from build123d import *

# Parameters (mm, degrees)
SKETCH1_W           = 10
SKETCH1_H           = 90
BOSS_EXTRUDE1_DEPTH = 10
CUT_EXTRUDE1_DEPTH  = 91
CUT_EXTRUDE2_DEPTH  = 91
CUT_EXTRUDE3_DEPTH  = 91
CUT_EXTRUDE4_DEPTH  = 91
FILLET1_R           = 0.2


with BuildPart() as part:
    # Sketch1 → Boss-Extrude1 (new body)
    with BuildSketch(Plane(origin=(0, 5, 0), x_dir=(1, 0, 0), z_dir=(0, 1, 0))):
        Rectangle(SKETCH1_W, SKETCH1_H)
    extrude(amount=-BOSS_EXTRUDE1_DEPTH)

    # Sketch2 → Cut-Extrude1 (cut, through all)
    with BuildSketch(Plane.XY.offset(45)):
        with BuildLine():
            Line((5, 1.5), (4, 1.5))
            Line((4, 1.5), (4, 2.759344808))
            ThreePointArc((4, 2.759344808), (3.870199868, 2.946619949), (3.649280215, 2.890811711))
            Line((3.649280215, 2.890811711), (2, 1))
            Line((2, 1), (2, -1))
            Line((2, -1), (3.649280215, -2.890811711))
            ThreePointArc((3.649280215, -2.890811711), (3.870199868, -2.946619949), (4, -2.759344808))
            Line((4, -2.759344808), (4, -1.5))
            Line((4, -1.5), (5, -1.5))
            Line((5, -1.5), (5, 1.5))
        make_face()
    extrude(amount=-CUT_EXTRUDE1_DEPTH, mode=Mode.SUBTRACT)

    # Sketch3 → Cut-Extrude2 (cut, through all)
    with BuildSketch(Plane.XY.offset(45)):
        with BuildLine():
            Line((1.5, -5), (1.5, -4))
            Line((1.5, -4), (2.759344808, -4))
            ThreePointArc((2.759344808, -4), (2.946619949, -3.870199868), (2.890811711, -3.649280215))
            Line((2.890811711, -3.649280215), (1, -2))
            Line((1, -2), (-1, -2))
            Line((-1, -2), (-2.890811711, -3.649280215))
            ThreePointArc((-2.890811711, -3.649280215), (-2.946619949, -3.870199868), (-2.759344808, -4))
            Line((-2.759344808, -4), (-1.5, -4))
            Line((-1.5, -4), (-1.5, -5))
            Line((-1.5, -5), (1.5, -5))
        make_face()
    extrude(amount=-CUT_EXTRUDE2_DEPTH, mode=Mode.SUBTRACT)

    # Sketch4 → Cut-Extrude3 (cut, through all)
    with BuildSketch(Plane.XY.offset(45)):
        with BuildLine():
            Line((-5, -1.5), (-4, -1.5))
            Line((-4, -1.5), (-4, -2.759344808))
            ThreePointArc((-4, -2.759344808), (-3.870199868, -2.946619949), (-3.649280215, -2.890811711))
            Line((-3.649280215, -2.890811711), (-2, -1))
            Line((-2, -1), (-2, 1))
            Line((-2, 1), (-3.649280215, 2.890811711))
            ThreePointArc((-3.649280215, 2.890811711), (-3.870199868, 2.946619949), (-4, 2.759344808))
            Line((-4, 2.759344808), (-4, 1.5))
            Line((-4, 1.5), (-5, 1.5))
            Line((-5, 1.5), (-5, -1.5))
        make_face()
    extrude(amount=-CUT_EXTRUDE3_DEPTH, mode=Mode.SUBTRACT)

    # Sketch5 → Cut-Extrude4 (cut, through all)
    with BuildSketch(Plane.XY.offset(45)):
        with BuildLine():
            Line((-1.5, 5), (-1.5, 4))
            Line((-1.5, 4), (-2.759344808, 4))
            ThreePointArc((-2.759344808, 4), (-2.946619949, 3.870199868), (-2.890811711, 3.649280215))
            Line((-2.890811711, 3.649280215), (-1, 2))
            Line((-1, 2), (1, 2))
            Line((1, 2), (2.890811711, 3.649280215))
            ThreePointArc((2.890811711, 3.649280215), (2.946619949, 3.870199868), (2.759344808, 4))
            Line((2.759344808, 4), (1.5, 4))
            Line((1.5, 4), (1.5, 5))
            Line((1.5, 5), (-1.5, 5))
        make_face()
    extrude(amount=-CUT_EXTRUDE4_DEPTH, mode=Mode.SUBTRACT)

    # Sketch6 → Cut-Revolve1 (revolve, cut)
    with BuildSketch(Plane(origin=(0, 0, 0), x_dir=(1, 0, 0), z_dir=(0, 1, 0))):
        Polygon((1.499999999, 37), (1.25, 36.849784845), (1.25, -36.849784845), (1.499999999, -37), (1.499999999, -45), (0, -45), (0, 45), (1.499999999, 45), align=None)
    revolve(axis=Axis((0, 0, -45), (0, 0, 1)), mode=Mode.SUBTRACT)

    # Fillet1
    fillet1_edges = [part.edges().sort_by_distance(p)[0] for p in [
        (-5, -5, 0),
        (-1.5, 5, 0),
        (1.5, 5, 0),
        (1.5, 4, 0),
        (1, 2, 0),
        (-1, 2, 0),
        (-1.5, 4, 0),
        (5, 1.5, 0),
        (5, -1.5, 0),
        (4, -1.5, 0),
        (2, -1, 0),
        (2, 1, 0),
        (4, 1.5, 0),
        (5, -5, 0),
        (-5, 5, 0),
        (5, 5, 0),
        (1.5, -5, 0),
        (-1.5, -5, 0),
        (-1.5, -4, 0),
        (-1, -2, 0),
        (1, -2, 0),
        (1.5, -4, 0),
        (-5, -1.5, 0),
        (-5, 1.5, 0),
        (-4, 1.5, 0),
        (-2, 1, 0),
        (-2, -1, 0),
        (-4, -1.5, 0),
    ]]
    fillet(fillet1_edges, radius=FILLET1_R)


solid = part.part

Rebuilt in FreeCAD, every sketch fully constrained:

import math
import FreeCAD as App
import Part
import Sketcher
from FreeCAD import Vector
Q = App.Units.Quantity


def edges_at(feature, points):
    """Names of the edges that pass closest to the given points."""
    edges = feature.Shape.Edges
    near = lambda p: min(range(len(edges)), key=lambda i: edges[i].distToShape(Part.Vertex(*p))[0])
    return sorted({f"Edge{near(p) + 1}" for p in points})

doc = App.newDocument("Part")
params = doc.addObject("Spreadsheet::Sheet", "Params")
for row, (alias, value) in enumerate([
    ("sketch1_width", "10 mm"),
    ("sketch1_height", "90 mm"),
    ("pad1_length", "10 mm"),
    ("sketch2_radius", "0.2 mm"),
    ("sketch2_width", "1 mm"),
    ("sketch2_height", "2 mm"),
    ("sketch2_height2", "3 mm"),
    ("sketch3_radius", "0.2 mm"),
    ("sketch3_width", "2 mm"),
    ("sketch3_width2", "3 mm"),
    ("sketch3_height", "1 mm"),
    ("sketch4_radius", "0.2 mm"),
    ("sketch4_width", "1 mm"),
    ("sketch4_height", "2 mm"),
    ("sketch4_height2", "3 mm"),
    ("sketch5_radius", "0.2 mm"),
    ("sketch5_width", "2 mm"),
    ("sketch5_width2", "3 mm"),
    ("sketch5_height", "1 mm"),
    ("sketch6_height", "8 mm"),
    ("sketch6_height2", "90 mm"),
    ("sketch6_width", "1.5 mm"),
    ("groove_angle", "360 deg"),
    ("fillet_radius", "0.2 mm"),
], start=1):
    params.set(f"A{row}", alias)
    params.set(f"B{row}", "=" + value)
    params.setAlias(f"B{row}", alias)

body = doc.addObject("PartDesign::Body", "Body")

# Sketch on XZ plane
sketch1 = body.newObject("Sketcher::SketchObject", "Sketch")
sketch1.AttachmentSupport = (doc.getObject("XZ_Plane"), [""])
sketch1.MapMode = "FlatFace"
sketch1.AttachmentOffset = App.Placement(Vector(0, 0, -5), App.Rotation())
sketch1.addGeometry([
    Part.LineSegment(Vector(-5, -45, 0), Vector(-5, 45, 0)),
    Part.LineSegment(Vector(-5, 45, 0), Vector(5, 45, 0)),
    Part.LineSegment(Vector(5, 45, 0), Vector(5, -45, 0)),
    Part.LineSegment(Vector(5, -45, 0), Vector(-5, -45, 0)),
], False)
sketch1.addConstraint([
    Sketcher.Constraint("Coincident", 0, 2, 1, 1),
    Sketcher.Constraint("Coincident", 1, 2, 2, 1),
    Sketcher.Constraint("Coincident", 2, 2, 3, 1),
    Sketcher.Constraint("Coincident", 3, 2, 0, 1),
    Sketcher.Constraint("Vertical", 0),
    Sketcher.Constraint("Horizontal", 1),
    Sketcher.Constraint("Vertical", 2),
    Sketcher.Constraint("Horizontal", 3),
    Sketcher.Constraint("Symmetric", 0, 2, 2, 2, -1, 1),
    Sketcher.Constraint("DistanceX", 1, 1, 1, 2, Q("10 mm")),
    Sketcher.Constraint("DistanceY", 0, 1, 0, 2, Q("90 mm")),
])
sketch1.setExpression("Constraints[9]", "Params.sketch1_width")
sketch1.setExpression("Constraints[10]", "Params.sketch1_height")
pad1 = body.newObject("PartDesign::Pad", "Pad")
pad1.Profile = sketch1
pad1.setExpression("Length", "Params.pad1_length")

# Sketch on XY plane
sketch2 = body.newObject("Sketcher::SketchObject", "Sketch001")
sketch2.AttachmentSupport = (doc.getObject("XY_Plane"), [""])
sketch2.MapMode = "FlatFace"
sketch2.AttachmentOffset = App.Placement(Vector(0, 0, 45), App.Rotation())
sketch2.addGeometry([
    Part.LineSegment(Vector(5, 1.5, 0), Vector(4, 1.5, 0)),  # 0
    Part.LineSegment(Vector(4, 1.5, 0), Vector(4, 2.76, 0)),  # 1
    Part.ArcOfCircle(Part.Circle(Vector(3.8, 2.76, 0), Vector(0, 0, 1), 0.2), math.radians(0), math.radians(139)),  # 2
    Part.LineSegment(Vector(3.65, 2.89, 0), Vector(2, 1, 0)),  # 3
    Part.LineSegment(Vector(2, 1, 0), Vector(2, -1, 0)),  # 4
    Part.LineSegment(Vector(2, -1, 0), Vector(3.65, -2.89, 0)),  # 5
    Part.ArcOfCircle(Part.Circle(Vector(3.8, -2.76, 0), Vector(0, 0, 1), 0.2), math.radians(-139), math.radians(0)),  # 6
    Part.LineSegment(Vector(4, -2.76, 0), Vector(4, -1.5, 0)),  # 7
    Part.LineSegment(Vector(4, -1.5, 0), Vector(5, -1.5, 0)),  # 8
    Part.LineSegment(Vector(5, -1.5, 0), Vector(5, 1.5, 0)),  # 9
], False)
sketch2.addConstraint([
    Sketcher.Constraint("Coincident", 0, 2, 1, 1),
    Sketcher.Constraint("Tangent", 1, 2, 2, 1),
    Sketcher.Constraint("Tangent", 2, 2, 3, 1),
    Sketcher.Constraint("Coincident", 3, 2, 4, 1),
    Sketcher.Constraint("Coincident", 4, 2, 5, 1),
    Sketcher.Constraint("Tangent", 5, 2, 6, 1),
    Sketcher.Constraint("Tangent", 6, 2, 7, 1),
    Sketcher.Constraint("Coincident", 7, 2, 8, 1),
    Sketcher.Constraint("Coincident", 8, 2, 9, 1),
    Sketcher.Constraint("Coincident", 9, 2, 0, 1),
    Sketcher.Constraint("Horizontal", 0),
    Sketcher.Constraint("Vertical", 1),
    Sketcher.Constraint("Vertical", 4),
    Sketcher.Constraint("Vertical", 7),
    Sketcher.Constraint("Horizontal", 8),
    Sketcher.Constraint("Vertical", 9),
    Sketcher.Constraint("Equal", 2, 6),
    Sketcher.Constraint("Symmetric", 2, 3, 6, 3, -1),
    Sketcher.Constraint("Vertical", 2, 2, 5, 2),
    Sketcher.Constraint("Equal", 1, 7),
    Sketcher.Constraint("Radius", 2, Q("0.2 mm")),
    Sketcher.Constraint("DistanceX", 0, 2, 0, 1, Q("1 mm")),
    Sketcher.Constraint("DistanceY", 4, 2, 4, 1, Q("2 mm")),
    Sketcher.Constraint("DistanceY", 9, 1, 9, 2, Q("3 mm")),
    Sketcher.Constraint("DistanceX", -1, 1, 0, 2, Q("4 mm")),
    Sketcher.Constraint("DistanceX", -1, 1, 3, 2, Q("2 mm")),
    Sketcher.Constraint("DistanceY", 1, 1, 1, 2, Q("1.259345 mm")),
])
sketch2.setExpression("Constraints[20]", "Params.sketch2_radius")
sketch2.setExpression("Constraints[21]", "Params.sketch2_width")
sketch2.setExpression("Constraints[22]", "Params.sketch2_height")
sketch2.setExpression("Constraints[23]", "Params.sketch2_height2")
pocket1 = body.newObject("PartDesign::Pocket", "Pocket")
pocket1.Profile = sketch2
pocket1.Type = "ThroughAll"

# Sketch on XY plane
sketch3 = body.newObject("Sketcher::SketchObject", "Sketch002")
sketch3.AttachmentSupport = (doc.getObject("XY_Plane"), [""])
sketch3.MapMode = "FlatFace"
sketch3.AttachmentOffset = App.Placement(Vector(0, 0, 45), App.Rotation())
sketch3.addGeometry([
    Part.LineSegment(Vector(1.5, -5, 0), Vector(1.5, -4, 0)),  # 0
    Part.LineSegment(Vector(1.5, -4, 0), Vector(2.76, -4, 0)),  # 1
    Part.ArcOfCircle(Part.Circle(Vector(2.76, -3.8, 0), Vector(0, 0, 1), 0.2), math.radians(-90), math.radians(49)),  # 2
    Part.LineSegment(Vector(2.89, -3.65, 0), Vector(1, -2, 0)),  # 3
    Part.LineSegment(Vector(1, -2, 0), Vector(-1, -2, 0)),  # 4
    Part.LineSegment(Vector(-1, -2, 0), Vector(-2.89, -3.65, 0)),  # 5
    Part.ArcOfCircle(Part.Circle(Vector(-2.76, -3.8, 0), Vector(0, 0, 1), 0.2), math.radians(131), math.radians(270)),  # 6
    Part.LineSegment(Vector(-2.76, -4, 0), Vector(-1.5, -4, 0)),  # 7
    Part.LineSegment(Vector(-1.5, -4, 0), Vector(-1.5, -5, 0)),  # 8
    Part.LineSegment(Vector(-1.5, -5, 0), Vector(1.5, -5, 0)),  # 9
], False)
sketch3.addConstraint([
    Sketcher.Constraint("Coincident", 0, 2, 1, 1),
    Sketcher.Constraint("Tangent", 1, 2, 2, 1),
    Sketcher.Constraint("Tangent", 2, 2, 3, 1),
    Sketcher.Constraint("Coincident", 3, 2, 4, 1),
    Sketcher.Constraint("Coincident", 4, 2, 5, 1),
    Sketcher.Constraint("Tangent", 5, 2, 6, 1),
    Sketcher.Constraint("Tangent", 6, 2, 7, 1),
    Sketcher.Constraint("Coincident", 7, 2, 8, 1),
    Sketcher.Constraint("Coincident", 8, 2, 9, 1),
    Sketcher.Constraint("Coincident", 9, 2, 0, 1),
    Sketcher.Constraint("Vertical", 0),
    Sketcher.Constraint("Horizontal", 1),
    Sketcher.Constraint("Horizontal", 4),
    Sketcher.Constraint("Horizontal", 7),
    Sketcher.Constraint("Vertical", 8),
    Sketcher.Constraint("Horizontal", 9),
    Sketcher.Constraint("Equal", 2, 6),
    Sketcher.Constraint("Symmetric", 2, 3, 6, 3, -2),
    Sketcher.Constraint("Horizontal", 2, 2, 5, 2),
    Sketcher.Constraint("Equal", 1, 7),
    Sketcher.Constraint("Radius", 2, Q("0.2 mm")),
    Sketcher.Constraint("DistanceX", 4, 2, 4, 1, Q("2 mm")),
    Sketcher.Constraint("DistanceX", 9, 1, 9, 2, Q("3 mm")),
    Sketcher.Constraint("DistanceY", 0, 1, 0, 2, Q("1 mm")),
    Sketcher.Constraint("DistanceY", 0, 2, -1, 1, Q("4 mm")),
    Sketcher.Constraint("DistanceY", 3, 2, -1, 1, Q("2 mm")),
    Sketcher.Constraint("DistanceX", 1, 1, 1, 2, Q("1.259345 mm")),
])
sketch3.setExpression("Constraints[20]", "Params.sketch3_radius")
sketch3.setExpression("Constraints[21]", "Params.sketch3_width")
sketch3.setExpression("Constraints[22]", "Params.sketch3_width2")
sketch3.setExpression("Constraints[23]", "Params.sketch3_height")
pocket2 = body.newObject("PartDesign::Pocket", "Pocket001")
pocket2.Profile = sketch3
pocket2.Type = "ThroughAll"

# Sketch on XY plane
sketch4 = body.newObject("Sketcher::SketchObject", "Sketch003")
sketch4.AttachmentSupport = (doc.getObject("XY_Plane"), [""])
sketch4.MapMode = "FlatFace"
sketch4.AttachmentOffset = App.Placement(Vector(0, 0, 45), App.Rotation())
sketch4.addGeometry([
    Part.LineSegment(Vector(-5, -1.5, 0), Vector(-4, -1.5, 0)),  # 0
    Part.LineSegment(Vector(-4, -1.5, 0), Vector(-4, -2.76, 0)),  # 1
    Part.ArcOfCircle(Part.Circle(Vector(-3.8, -2.76, 0), Vector(0, 0, 1), 0.2), math.radians(-180), math.radians(-41)),  # 2
    Part.LineSegment(Vector(-3.65, -2.89, 0), Vector(-2, -1, 0)),  # 3
    Part.LineSegment(Vector(-2, -1, 0), Vector(-2, 1, 0)),  # 4
    Part.LineSegment(Vector(-2, 1, 0), Vector(-3.65, 2.89, 0)),  # 5
    Part.ArcOfCircle(Part.Circle(Vector(-3.8, 2.76, 0), Vector(0, 0, 1), 0.2), math.radians(41), math.radians(180)),  # 6
    Part.LineSegment(Vector(-4, 2.76, 0), Vector(-4, 1.5, 0)),  # 7
    Part.LineSegment(Vector(-4, 1.5, 0), Vector(-5, 1.5, 0)),  # 8
    Part.LineSegment(Vector(-5, 1.5, 0), Vector(-5, -1.5, 0)),  # 9
], False)
sketch4.addConstraint([
    Sketcher.Constraint("Coincident", 0, 2, 1, 1),
    Sketcher.Constraint("Tangent", 1, 2, 2, 1),
    Sketcher.Constraint("Tangent", 2, 2, 3, 1),
    Sketcher.Constraint("Coincident", 3, 2, 4, 1),
    Sketcher.Constraint("Coincident", 4, 2, 5, 1),
    Sketcher.Constraint("Tangent", 5, 2, 6, 1),
    Sketcher.Constraint("Tangent", 6, 2, 7, 1),
    Sketcher.Constraint("Coincident", 7, 2, 8, 1),
    Sketcher.Constraint("Coincident", 8, 2, 9, 1),
    Sketcher.Constraint("Coincident", 9, 2, 0, 1),
    Sketcher.Constraint("Horizontal", 0),
    Sketcher.Constraint("Vertical", 1),
    Sketcher.Constraint("Vertical", 4),
    Sketcher.Constraint("Vertical", 7),
    Sketcher.Constraint("Horizontal", 8),
    Sketcher.Constraint("Vertical", 9),
    Sketcher.Constraint("Equal", 2, 6),
    Sketcher.Constraint("Symmetric", 2, 3, 6, 3, -1),
    Sketcher.Constraint("Vertical", 2, 2, 5, 2),
    Sketcher.Constraint("Equal", 1, 7),
    Sketcher.Constraint("Radius", 2, Q("0.2 mm")),
    Sketcher.Constraint("DistanceX", 0, 1, 0, 2, Q("1 mm")),
    Sketcher.Constraint("DistanceY", 4, 1, 4, 2, Q("2 mm")),
    Sketcher.Constraint("DistanceY", 9, 2, 9, 1, Q("3 mm")),
    Sketcher.Constraint("DistanceX", 0, 2, -1, 1, Q("4 mm")),
    Sketcher.Constraint("DistanceX", 3, 2, -1, 1, Q("2 mm")),
    Sketcher.Constraint("DistanceY", 1, 2, 1, 1, Q("1.259345 mm")),
])
sketch4.setExpression("Constraints[20]", "Params.sketch4_radius")
sketch4.setExpression("Constraints[21]", "Params.sketch4_width")
sketch4.setExpression("Constraints[22]", "Params.sketch4_height")
sketch4.setExpression("Constraints[23]", "Params.sketch4_height2")
pocket3 = body.newObject("PartDesign::Pocket", "Pocket002")
pocket3.Profile = sketch4
pocket3.Type = "ThroughAll"

# Sketch on XY plane
sketch5 = body.newObject("Sketcher::SketchObject", "Sketch004")
sketch5.AttachmentSupport = (doc.getObject("XY_Plane"), [""])
sketch5.MapMode = "FlatFace"
sketch5.AttachmentOffset = App.Placement(Vector(0, 0, 45), App.Rotation())
sketch5.addGeometry([
    Part.LineSegment(Vector(-1.5, 5, 0), Vector(-1.5, 4, 0)),  # 0
    Part.LineSegment(Vector(-1.5, 4, 0), Vector(-2.76, 4, 0)),  # 1
    Part.ArcOfCircle(Part.Circle(Vector(-2.76, 3.8, 0), Vector(0, 0, 1), 0.2), math.radians(90), math.radians(229)),  # 2
    Part.LineSegment(Vector(-2.89, 3.65, 0), Vector(-1, 2, 0)),  # 3
    Part.LineSegment(Vector(-1, 2, 0), Vector(1, 2, 0)),  # 4
    Part.LineSegment(Vector(1, 2, 0), Vector(2.89, 3.65, 0)),  # 5
    Part.ArcOfCircle(Part.Circle(Vector(2.76, 3.8, 0), Vector(0, 0, 1), 0.2), math.radians(-49), math.radians(90)),  # 6
    Part.LineSegment(Vector(2.76, 4, 0), Vector(1.5, 4, 0)),  # 7
    Part.LineSegment(Vector(1.5, 4, 0), Vector(1.5, 5, 0)),  # 8
    Part.LineSegment(Vector(1.5, 5, 0), Vector(-1.5, 5, 0)),  # 9
], False)
sketch5.addConstraint([
    Sketcher.Constraint("Coincident", 0, 2, 1, 1),
    Sketcher.Constraint("Tangent", 1, 2, 2, 1),
    Sketcher.Constraint("Tangent", 2, 2, 3, 1),
    Sketcher.Constraint("Coincident", 3, 2, 4, 1),
    Sketcher.Constraint("Coincident", 4, 2, 5, 1),
    Sketcher.Constraint("Tangent", 5, 2, 6, 1),
    Sketcher.Constraint("Tangent", 6, 2, 7, 1),
    Sketcher.Constraint("Coincident", 7, 2, 8, 1),
    Sketcher.Constraint("Coincident", 8, 2, 9, 1),
    Sketcher.Constraint("Coincident", 9, 2, 0, 1),
    Sketcher.Constraint("Vertical", 0),
    Sketcher.Constraint("Horizontal", 1),
    Sketcher.Constraint("Horizontal", 4),
    Sketcher.Constraint("Horizontal", 7),
    Sketcher.Constraint("Vertical", 8),
    Sketcher.Constraint("Horizontal", 9),
    Sketcher.Constraint("Equal", 2, 6),
    Sketcher.Constraint("Symmetric", 2, 3, 6, 3, -2),
    Sketcher.Constraint("Horizontal", 2, 2, 5, 2),
    Sketcher.Constraint("Equal", 1, 7),
    Sketcher.Constraint("Radius", 2, Q("0.2 mm")),
    Sketcher.Constraint("DistanceX", 4, 1, 4, 2, Q("2 mm")),
    Sketcher.Constraint("DistanceX", 9, 2, 9, 1, Q("3 mm")),
    Sketcher.Constraint("DistanceY", 0, 2, 0, 1, Q("1 mm")),
    Sketcher.Constraint("DistanceY", -1, 1, 0, 2, Q("4 mm")),
    Sketcher.Constraint("DistanceY", -1, 1, 3, 2, Q("2 mm")),
    Sketcher.Constraint("DistanceX", 1, 2, 1, 1, Q("1.259345 mm")),
])
sketch5.setExpression("Constraints[20]", "Params.sketch5_radius")
sketch5.setExpression("Constraints[21]", "Params.sketch5_width")
sketch5.setExpression("Constraints[22]", "Params.sketch5_width2")
sketch5.setExpression("Constraints[23]", "Params.sketch5_height")
pocket4 = body.newObject("PartDesign::Pocket", "Pocket003")
pocket4.Profile = sketch5
pocket4.Type = "ThroughAll"

# Sketch on XZ plane
sketch6 = body.newObject("Sketcher::SketchObject", "Sketch005")
sketch6.AttachmentSupport = (doc.getObject("XZ_Plane"), [""])
sketch6.MapMode = "FlatFace"
sketch6.addGeometry([
    Part.LineSegment(Vector(1.25, -36.85, 0), Vector(1.5, -37, 0)),  # 0
    Part.LineSegment(Vector(1.5, -37, 0), Vector(1.5, -45, 0)),  # 1
    Part.LineSegment(Vector(1.5, -45, 0), Vector(0, -45, 0)),  # 2
    Part.LineSegment(Vector(0, -45, 0), Vector(0, 45, 0)),  # 3
    Part.LineSegment(Vector(0, 45, 0), Vector(1.5, 45, 0)),  # 4
    Part.LineSegment(Vector(1.5, 45, 0), Vector(1.5, 37, 0)),  # 5
    Part.LineSegment(Vector(1.5, 37, 0), Vector(1.25, 36.85, 0)),  # 6
    Part.LineSegment(Vector(1.25, 36.85, 0), Vector(1.25, -36.85, 0)),  # 7
], False)
sketch6.addConstraint([
    Sketcher.Constraint("Coincident", 0, 2, 1, 1),
    Sketcher.Constraint("Coincident", 1, 2, 2, 1),
    Sketcher.Constraint("Coincident", 2, 2, 3, 1),
    Sketcher.Constraint("Coincident", 3, 2, 4, 1),
    Sketcher.Constraint("Coincident", 4, 2, 5, 1),
    Sketcher.Constraint("Coincident", 5, 2, 6, 1),
    Sketcher.Constraint("Coincident", 6, 2, 7, 1),
    Sketcher.Constraint("Coincident", 7, 2, 0, 1),
    Sketcher.Constraint("Vertical", 1),
    Sketcher.Constraint("Horizontal", 2),
    Sketcher.Constraint("Vertical", 3),
    Sketcher.Constraint("Horizontal", 4),
    Sketcher.Constraint("Vertical", 5),
    Sketcher.Constraint("Vertical", 7),
    Sketcher.Constraint("Symmetric", 2, 2, 3, 2, -1, 1),
    Sketcher.Constraint("Symmetric", 0, 2, 5, 2, -1),
    Sketcher.Constraint("Equal", 0, 6),
    Sketcher.Constraint("DistanceY", 1, 2, 1, 1, Q("8 mm")),
    Sketcher.Constraint("DistanceY", 3, 1, 3, 2, Q("90 mm")),
    Sketcher.Constraint("Angle", 0, Q("-31 deg")),
    Sketcher.Constraint("DistanceX", 2, 2, 2, 1, Q("1.5 mm")),
    Sketcher.Constraint("DistanceX", -1, 1, 6, 2, Q("1.25 mm")),
])
sketch6.setExpression("Constraints[17]", "Params.sketch6_height")
sketch6.setExpression("Constraints[18]", "Params.sketch6_height2")
sketch6.setExpression("Constraints[20]", "Params.sketch6_width")
groove = body.newObject("PartDesign::Groove", "Groove")
groove.Profile = sketch6
groove.ReferenceAxis = (sketch6, ["V_Axis"])
groove.setExpression("Angle", "Params.groove_angle")
doc.recompute()

fillet = body.newObject("PartDesign::Fillet", "Fillet")
fillet.Base = (groove, edges_at(groove, [
    (-5, -5, 0),
    (-1.5, 5, 0),
    (1.5, 5, 0),
    (1.5, 4, 0),
    (1, 2, 0),
    (-1, 2, 0),
    (-1.5, 4, 0),
    (5, 1.5, 0),
    (5, -1.5, 0),
    (4, -1.5, 0),
    (2, -1, 0),
    (2, 1, 0),
    (4, 1.5, 0),
    (5, -5, 0),
    (-5, 5, 0),
    (5, 5, 0),
    (1.5, -5, 0),
    (-1.5, -5, 0),
    (-1.5, -4, 0),
    (-1, -2, 0),
    (1, -2, 0),
    (1.5, -4, 0),
    (-5, -1.5, 0),
    (-5, 1.5, 0),
    (-4, 1.5, 0),
    (-2, 1, 0),
    (-2, -1, 0),
    (-4, -1.5, 0),
]))
fillet.setExpression("Radius", "Params.fillet_radius")

doc.recompute()
